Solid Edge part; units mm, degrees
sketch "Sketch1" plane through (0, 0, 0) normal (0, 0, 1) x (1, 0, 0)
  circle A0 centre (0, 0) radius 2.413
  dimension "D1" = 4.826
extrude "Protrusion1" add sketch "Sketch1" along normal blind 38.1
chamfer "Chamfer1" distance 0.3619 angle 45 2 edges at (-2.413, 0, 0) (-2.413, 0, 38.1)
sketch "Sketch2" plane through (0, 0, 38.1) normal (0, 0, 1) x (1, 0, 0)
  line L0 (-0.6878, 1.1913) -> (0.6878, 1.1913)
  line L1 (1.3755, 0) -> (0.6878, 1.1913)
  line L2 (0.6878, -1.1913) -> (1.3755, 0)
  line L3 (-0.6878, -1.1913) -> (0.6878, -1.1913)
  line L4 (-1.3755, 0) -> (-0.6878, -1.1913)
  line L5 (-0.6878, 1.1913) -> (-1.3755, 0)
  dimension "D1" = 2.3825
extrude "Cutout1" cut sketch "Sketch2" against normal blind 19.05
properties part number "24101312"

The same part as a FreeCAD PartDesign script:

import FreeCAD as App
import Part
import Sketcher

V = App.Vector
Q = App.Units.Quantity


def edges_at(feature, points):
    """Names of the edges that pass closest to the given points."""
    edges = feature.Shape.Edges
    near = lambda p: min(range(len(edges)), key=lambda i: edges[i].distToShape(Part.Vertex(*p))[0])
    return sorted({f"Edge{near(p) + 1}" for p in points})

doc = App.newDocument("Part")
body = doc.addObject("PartDesign::Body", "Body")

sketch1 = body.newObject("Sketcher::SketchObject", "Sketch")
sketch1.AttachmentSupport = (doc.getObject("XY_Plane"), [""])
sketch1.MapMode = "FlatFace"
sketch1.addGeometry(Part.Circle(V(0, 0, 0), V(0, 0, 1), 2.413), False)
sketch1.addConstraint([
    Sketcher.Constraint("Coincident", 0, 3, -1, 1),
    Sketcher.Constraint("Diameter", 0, Q("0.19 in")),
])
pad1 = body.newObject("PartDesign::Pad", "Pad")
pad1.Profile = sketch1
pad1.Length = Q("1.5 in")
doc.recompute()

chamfer = body.newObject("PartDesign::Chamfer", "Chamfer")
chamfer.Base = (pad1, edges_at(pad1, [(-2.413, 0, 0), (-2.413, 0, 38.1)]))
chamfer.Size = 0.3619

sketch2 = body.newObject("Sketcher::SketchObject", "Sketch001")
sketch2.AttachmentSupport = (doc.getObject("XY_Plane"), [""])
sketch2.MapMode = "FlatFace"
sketch2.AttachmentOffset = App.Placement(V(0, 0, 1.5 * 25.4), App.Rotation())
sketch2.addGeometry([
    Part.LineSegment(V(0.6878, 1.1913, 0), V(-0.6878, 1.1913, 0)),
    Part.LineSegment(V(-0.6878, 1.1913, 0), V(-1.3755, 0, 0)),
    Part.LineSegment(V(-1.3755, 0, 0), V(-0.6878, -1.1913, 0)),
    Part.LineSegment(V(-0.6878, -1.1913, 0), V(0.6878, -1.1913, 0)),
    Part.LineSegment(V(0.6878, -1.1913, 0), V(1.3755, 0, 0)),
    Part.LineSegment(V(1.3755, 0, 0), V(0.6878, 1.1913, 0)),
], False)
sketch2.addConstraint([
    Sketcher.Constraint("Coincident", 0, 2, 1, 1),
    Sketcher.Constraint("Coincident", 1, 2, 2, 1),
    Sketcher.Constraint("Coincident", 2, 2, 3, 1),
    Sketcher.Constraint("Coincident", 3, 2, 4, 1),
    Sketcher.Constraint("Coincident", 4, 2, 5, 1),
    Sketcher.Constraint("Coincident", 5, 2, 0, 1),
    Sketcher.Constraint("Horizontal", 0),
    Sketcher.Constraint("Horizontal", 3),
    Sketcher.Constraint("Symmetric", 0, 2, 3, 2, -1, 1),
    Sketcher.Constraint("Symmetric", 1, 2, 4, 2, -1, 1),
    Sketcher.Constraint("PointOnObject", 1, 2, -1),
    Sketcher.Constraint("Parallel", 2, 5),
    Sketcher.Constraint("Vertical", 0, 2, 2, 2),
    Sketcher.Constraint("DistanceX", 0, 2, 0, 1, Q("1.3756 mm")),
    Sketcher.Constraint("DistanceY", -1, 1, 0, 2, Q("0.0469 in")),
    Sketcher.Constraint("DistanceX", 1, 2, 4, 2, Q("0.1083 in")),
])
pocket1 = body.newObject("PartDesign::Pocket", "Pocket")
pocket1.Profile = sketch2
pocket1.Length = Q("0.75 in")

doc.recompute()
